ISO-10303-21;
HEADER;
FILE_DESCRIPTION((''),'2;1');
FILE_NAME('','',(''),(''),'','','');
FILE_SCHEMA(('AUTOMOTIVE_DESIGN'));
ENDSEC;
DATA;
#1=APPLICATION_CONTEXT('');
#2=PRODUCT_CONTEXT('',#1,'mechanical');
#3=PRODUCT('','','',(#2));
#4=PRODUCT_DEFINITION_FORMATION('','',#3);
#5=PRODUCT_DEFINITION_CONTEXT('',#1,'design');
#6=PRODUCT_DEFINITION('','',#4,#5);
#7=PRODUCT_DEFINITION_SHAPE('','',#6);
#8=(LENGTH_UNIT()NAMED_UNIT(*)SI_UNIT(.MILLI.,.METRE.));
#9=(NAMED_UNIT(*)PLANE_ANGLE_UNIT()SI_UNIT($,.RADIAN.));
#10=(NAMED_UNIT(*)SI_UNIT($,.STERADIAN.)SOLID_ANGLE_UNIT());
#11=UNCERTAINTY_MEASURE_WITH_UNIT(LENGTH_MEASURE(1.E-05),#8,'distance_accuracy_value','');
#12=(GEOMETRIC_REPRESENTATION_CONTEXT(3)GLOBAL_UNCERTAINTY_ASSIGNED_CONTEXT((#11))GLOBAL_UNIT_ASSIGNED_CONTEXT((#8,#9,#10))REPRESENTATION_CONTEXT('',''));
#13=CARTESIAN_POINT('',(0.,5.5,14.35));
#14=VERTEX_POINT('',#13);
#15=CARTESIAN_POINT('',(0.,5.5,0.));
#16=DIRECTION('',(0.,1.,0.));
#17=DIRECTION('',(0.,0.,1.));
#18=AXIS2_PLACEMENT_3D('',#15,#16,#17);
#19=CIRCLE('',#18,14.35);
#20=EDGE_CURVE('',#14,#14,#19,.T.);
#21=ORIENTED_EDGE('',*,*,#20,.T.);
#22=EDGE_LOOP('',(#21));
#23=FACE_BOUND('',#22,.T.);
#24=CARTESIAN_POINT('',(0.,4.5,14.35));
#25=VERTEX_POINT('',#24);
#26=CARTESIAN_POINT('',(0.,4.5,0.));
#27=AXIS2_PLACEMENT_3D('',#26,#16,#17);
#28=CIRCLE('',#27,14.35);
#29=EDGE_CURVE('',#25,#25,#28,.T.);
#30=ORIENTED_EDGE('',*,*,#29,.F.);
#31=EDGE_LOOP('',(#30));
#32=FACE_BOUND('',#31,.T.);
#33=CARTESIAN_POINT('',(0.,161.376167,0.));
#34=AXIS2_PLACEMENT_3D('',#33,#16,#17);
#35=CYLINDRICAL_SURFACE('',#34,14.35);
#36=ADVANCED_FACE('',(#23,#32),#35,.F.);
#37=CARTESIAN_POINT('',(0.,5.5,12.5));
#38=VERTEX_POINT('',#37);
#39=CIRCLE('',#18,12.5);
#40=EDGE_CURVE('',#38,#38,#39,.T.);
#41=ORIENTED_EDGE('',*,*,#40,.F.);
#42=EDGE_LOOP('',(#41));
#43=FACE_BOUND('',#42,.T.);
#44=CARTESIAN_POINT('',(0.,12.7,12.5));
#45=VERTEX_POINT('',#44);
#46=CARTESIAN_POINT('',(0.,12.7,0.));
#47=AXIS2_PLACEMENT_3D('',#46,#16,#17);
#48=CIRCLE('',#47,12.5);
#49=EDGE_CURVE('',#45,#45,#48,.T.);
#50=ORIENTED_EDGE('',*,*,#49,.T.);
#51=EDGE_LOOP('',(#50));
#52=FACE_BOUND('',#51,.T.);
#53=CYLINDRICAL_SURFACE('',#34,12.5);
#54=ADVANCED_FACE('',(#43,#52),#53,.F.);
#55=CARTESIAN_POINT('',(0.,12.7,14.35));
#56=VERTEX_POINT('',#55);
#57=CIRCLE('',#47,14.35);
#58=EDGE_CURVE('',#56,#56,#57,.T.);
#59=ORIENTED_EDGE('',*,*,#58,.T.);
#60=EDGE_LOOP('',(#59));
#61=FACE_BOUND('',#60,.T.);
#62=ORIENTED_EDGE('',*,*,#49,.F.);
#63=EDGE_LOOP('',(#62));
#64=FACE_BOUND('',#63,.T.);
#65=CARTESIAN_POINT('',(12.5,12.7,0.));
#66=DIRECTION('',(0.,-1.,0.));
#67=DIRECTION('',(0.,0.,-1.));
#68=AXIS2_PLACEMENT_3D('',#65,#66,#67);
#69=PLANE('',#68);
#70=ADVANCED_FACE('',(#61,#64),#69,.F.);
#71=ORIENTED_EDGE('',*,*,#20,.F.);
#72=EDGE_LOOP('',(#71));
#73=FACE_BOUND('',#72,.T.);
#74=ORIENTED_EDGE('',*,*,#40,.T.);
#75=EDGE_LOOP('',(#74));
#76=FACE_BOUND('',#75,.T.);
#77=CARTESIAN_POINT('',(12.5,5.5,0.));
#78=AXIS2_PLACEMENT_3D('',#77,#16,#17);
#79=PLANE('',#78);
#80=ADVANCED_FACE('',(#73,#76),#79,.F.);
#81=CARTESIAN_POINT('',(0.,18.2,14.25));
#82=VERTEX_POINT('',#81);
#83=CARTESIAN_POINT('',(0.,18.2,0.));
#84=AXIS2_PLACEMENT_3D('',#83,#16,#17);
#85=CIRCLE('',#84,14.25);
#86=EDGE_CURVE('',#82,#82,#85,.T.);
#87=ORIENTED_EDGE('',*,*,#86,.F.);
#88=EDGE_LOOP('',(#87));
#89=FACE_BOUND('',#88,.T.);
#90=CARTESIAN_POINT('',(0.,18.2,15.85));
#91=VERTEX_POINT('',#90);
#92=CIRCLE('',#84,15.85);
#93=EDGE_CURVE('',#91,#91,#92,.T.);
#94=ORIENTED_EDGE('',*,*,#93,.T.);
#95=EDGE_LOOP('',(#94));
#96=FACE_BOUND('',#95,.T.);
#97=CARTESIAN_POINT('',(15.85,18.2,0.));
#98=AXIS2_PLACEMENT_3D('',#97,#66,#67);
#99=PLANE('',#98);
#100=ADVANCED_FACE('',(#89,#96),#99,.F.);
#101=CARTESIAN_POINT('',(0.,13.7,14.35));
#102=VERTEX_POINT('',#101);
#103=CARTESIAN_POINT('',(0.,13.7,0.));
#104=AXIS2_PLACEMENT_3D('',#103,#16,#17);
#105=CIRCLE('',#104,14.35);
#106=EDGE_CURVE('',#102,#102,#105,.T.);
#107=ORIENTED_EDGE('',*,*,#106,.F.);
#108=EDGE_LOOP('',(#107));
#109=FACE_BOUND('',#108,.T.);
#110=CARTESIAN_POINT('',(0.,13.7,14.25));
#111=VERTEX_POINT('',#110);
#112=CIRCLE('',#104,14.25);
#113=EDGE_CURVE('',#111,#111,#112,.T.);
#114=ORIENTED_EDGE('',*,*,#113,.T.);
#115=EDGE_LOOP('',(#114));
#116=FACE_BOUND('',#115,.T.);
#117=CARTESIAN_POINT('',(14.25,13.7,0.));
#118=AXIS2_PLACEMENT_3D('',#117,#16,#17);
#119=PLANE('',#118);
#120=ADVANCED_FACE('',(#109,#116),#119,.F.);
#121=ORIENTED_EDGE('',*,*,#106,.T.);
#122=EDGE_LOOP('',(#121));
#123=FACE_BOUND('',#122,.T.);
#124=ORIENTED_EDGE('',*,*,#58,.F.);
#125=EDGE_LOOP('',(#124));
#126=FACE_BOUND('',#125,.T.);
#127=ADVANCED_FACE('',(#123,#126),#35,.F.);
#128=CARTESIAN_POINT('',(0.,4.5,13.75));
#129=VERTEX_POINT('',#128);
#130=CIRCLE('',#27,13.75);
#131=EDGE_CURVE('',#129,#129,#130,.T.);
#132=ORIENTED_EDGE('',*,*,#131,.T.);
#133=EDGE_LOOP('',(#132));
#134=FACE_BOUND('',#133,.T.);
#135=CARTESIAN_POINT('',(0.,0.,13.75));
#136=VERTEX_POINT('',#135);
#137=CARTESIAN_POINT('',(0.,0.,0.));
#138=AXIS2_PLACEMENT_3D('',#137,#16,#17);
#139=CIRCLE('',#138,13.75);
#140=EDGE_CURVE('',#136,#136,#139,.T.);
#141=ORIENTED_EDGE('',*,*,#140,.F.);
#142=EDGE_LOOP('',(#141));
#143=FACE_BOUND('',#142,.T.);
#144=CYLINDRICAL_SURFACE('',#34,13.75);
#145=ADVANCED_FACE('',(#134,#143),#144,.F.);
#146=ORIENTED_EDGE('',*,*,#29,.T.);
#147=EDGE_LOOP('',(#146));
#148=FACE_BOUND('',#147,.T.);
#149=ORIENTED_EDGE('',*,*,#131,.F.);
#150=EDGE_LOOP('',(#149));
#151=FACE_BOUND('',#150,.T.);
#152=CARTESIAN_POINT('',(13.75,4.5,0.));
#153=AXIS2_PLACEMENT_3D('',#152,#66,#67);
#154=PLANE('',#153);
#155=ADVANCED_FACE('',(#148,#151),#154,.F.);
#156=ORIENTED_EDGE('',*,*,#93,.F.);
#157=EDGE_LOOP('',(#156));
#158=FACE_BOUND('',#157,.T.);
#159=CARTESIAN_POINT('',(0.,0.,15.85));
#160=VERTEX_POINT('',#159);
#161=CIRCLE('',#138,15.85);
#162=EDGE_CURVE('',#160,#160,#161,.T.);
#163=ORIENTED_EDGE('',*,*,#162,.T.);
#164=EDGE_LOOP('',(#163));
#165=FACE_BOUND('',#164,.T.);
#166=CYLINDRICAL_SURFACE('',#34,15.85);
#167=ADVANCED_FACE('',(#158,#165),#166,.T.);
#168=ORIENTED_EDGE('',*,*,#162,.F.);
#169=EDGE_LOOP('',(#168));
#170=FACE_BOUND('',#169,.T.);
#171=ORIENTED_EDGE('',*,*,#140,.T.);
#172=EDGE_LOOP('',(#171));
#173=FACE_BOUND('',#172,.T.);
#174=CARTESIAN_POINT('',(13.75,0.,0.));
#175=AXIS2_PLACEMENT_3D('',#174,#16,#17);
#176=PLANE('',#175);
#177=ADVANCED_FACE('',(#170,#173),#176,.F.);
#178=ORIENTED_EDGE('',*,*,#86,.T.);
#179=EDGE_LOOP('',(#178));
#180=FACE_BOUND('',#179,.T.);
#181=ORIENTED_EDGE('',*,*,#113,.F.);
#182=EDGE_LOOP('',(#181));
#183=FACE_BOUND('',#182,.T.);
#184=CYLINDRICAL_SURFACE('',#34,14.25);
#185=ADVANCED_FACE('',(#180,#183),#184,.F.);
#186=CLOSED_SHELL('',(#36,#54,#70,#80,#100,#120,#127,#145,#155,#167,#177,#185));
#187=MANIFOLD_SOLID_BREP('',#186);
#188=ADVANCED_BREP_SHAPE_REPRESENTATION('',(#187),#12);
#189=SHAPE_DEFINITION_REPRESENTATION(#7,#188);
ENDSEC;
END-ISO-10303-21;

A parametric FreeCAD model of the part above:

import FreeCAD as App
import Part
import Sketcher


def add_polygon(sketch, points):
    """Adds a closed chain of lines whose ends are joined by coincident constraints."""
    first, n = sketch.GeometryCount, len(points)
    for a, b in zip(points, points[1:] + points[:1]):
        sketch.addGeometry(Part.LineSegment(App.Vector(*a, 0), App.Vector(*b, 0)), False)
    for i in range(n):
        sketch.addConstraint(Sketcher.Constraint("Coincident", first + i, 2, first + (i + 1) % n, 1))

doc = App.newDocument("Part")
body = doc.addObject("PartDesign::Body", "Body")

# Sketch on XY plane
sketch1 = body.newObject("Sketcher::SketchObject", "Sketch")
sketch1.AttachmentSupport = (doc.getObject("XY_Plane"), [""])
sketch1.MapMode = "FlatFace"
add_polygon(sketch1, [(13.75, 4.5), (13.75, 0), (15.85, 0), (15.85, 18.2), (14.25, 18.2), (14.25, 13.7), (14.35, 13.7), (14.35, 12.7), (12.5, 12.7), (12.5, 5.5), (14.35, 5.5), (14.35, 4.5)])  # lines 0-11
sketch1.addConstraint(Sketcher.Constraint("Vertical", 0))
sketch1.addConstraint(Sketcher.Constraint("Horizontal", 1))
sketch1.addConstraint(Sketcher.Constraint("Vertical", 2))
sketch1.addConstraint(Sketcher.Constraint("Horizontal", 3))
sketch1.addConstraint(Sketcher.Constraint("Vertical", 4))
sketch1.addConstraint(Sketcher.Constraint("Horizontal", 5))
sketch1.addConstraint(Sketcher.Constraint("Vertical", 6))
sketch1.addConstraint(Sketcher.Constraint("Horizontal", 7))
sketch1.addConstraint(Sketcher.Constraint("Vertical", 8))
sketch1.addConstraint(Sketcher.Constraint("Horizontal", 9))
sketch1.addConstraint(Sketcher.Constraint("Vertical", 10))
sketch1.addConstraint(Sketcher.Constraint("Horizontal", 11))
sketch1.addConstraint(Sketcher.Constraint("PointOnObject", 0, 2, -1))
sketch1.addConstraint(Sketcher.Constraint("Vertical", 6, 2, 9, 2))
sketch1.addConstraint(Sketcher.Constraint("Equal", 0, 4))
sketch1.addConstraint(Sketcher.Constraint("Equal", 6, 10))
sketch1.addConstraint(Sketcher.Constraint("DistanceY", 6, 2, 6, 1, 1.0))
sketch1.addConstraint(Sketcher.Constraint("DistanceX", 1, 1, 1, 2, 2.1))
sketch1.addConstraint(Sketcher.Constraint("DistanceX", 3, 2, 3, 1, 1.6))
sketch1.addConstraint(Sketcher.Constraint("DistanceX", 5, 1, 5, 2, 0.1))
sketch1.addConstraint(Sketcher.Constraint("DistanceY", 0, 2, 0, 1, 4.5))
sketch1.addConstraint(Sketcher.Constraint("DistanceY", 2, 1, 2, 2, 18.2))
sketch1.addConstraint(Sketcher.Constraint("DistanceX", 7, 2, 7, 1, 1.85))
sketch1.addConstraint(Sketcher.Constraint("DistanceX", -1, 1, 7, 2, 12.5))
revolution = body.newObject("PartDesign::Revolution", "Revolution")
revolution.Profile = sketch1
revolution.ReferenceAxis = (sketch1, ["V_Axis"])
revolution.Angle = 360

doc.recompute()
